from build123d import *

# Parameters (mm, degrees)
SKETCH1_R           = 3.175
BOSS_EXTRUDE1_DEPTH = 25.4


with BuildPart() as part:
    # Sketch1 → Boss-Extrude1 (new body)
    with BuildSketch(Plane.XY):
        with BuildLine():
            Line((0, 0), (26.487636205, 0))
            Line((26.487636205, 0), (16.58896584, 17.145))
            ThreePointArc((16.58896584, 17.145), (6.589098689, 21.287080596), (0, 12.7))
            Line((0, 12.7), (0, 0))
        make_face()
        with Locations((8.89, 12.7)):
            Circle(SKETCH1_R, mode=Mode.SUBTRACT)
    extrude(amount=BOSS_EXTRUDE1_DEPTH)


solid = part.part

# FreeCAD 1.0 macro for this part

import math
import FreeCAD as App
import Part
import Sketcher
from FreeCAD import Vector
Q = App.Units.Quantity

doc = App.newDocument("Part")
body = doc.addObject("PartDesign::Body", "Body")

# Sketch on XY plane
sketch1 = body.newObject("Sketcher::SketchObject", "Sketch")
sketch1.AttachmentSupport = (doc.getObject("XY_Plane"), [""])
sketch1.MapMode = "FlatFace"
sketch1.addGeometry([
    Part.LineSegment(Vector(0, 0, 0), Vector(26.5, 0, 0)),  # 0
    Part.LineSegment(Vector(26.5, 0, 0), Vector(16.6, 17.1, 0)),  # 1
    Part.ArcOfCircle(Part.Circle(Vector(8.9, 12.7, 0), Vector(0, 0, 1), 8.9), math.radians(30), math.radians(180)),  # 2
    Part.LineSegment(Vector(0, 12.7, 0), Vector(0, 0, 0)),  # 3
    Part.Circle(Vector(8.9, 12.7, 0), Vector(0, 0, 1), 3.2),  # 4
], False)
sketch1.addConstraint([
    Sketcher.Constraint("Coincident", 0, 2, 1, 1),
    Sketcher.Constraint("Tangent", 1, 2, 2, 1),
    Sketcher.Constraint("Tangent", 2, 2, 3, 1),
    Sketcher.Constraint("Coincident", 3, 2, 0, 1),
    Sketcher.Constraint("Horizontal", 0),
    Sketcher.Constraint("Vertical", 3),
    Sketcher.Constraint("Coincident", 3, 2, -1, 1),
    Sketcher.Constraint("Coincident", 4, 3, 2, 3),
    Sketcher.Constraint("Diameter", 4, Q("0.25 in")),
    Sketcher.Constraint("Radius", 2, Q("0.35 in")),
    Sketcher.Constraint("DistanceY", 3, 2, 3, 1, Q("0.5 in")),
    Sketcher.Constraint("Angle", 1, Q("120 deg")),
])
pad1 = body.newObject("PartDesign::Pad", "Pad")
pad1.Profile = sketch1
pad1.Length = Q("1 in")

doc.recompute()
